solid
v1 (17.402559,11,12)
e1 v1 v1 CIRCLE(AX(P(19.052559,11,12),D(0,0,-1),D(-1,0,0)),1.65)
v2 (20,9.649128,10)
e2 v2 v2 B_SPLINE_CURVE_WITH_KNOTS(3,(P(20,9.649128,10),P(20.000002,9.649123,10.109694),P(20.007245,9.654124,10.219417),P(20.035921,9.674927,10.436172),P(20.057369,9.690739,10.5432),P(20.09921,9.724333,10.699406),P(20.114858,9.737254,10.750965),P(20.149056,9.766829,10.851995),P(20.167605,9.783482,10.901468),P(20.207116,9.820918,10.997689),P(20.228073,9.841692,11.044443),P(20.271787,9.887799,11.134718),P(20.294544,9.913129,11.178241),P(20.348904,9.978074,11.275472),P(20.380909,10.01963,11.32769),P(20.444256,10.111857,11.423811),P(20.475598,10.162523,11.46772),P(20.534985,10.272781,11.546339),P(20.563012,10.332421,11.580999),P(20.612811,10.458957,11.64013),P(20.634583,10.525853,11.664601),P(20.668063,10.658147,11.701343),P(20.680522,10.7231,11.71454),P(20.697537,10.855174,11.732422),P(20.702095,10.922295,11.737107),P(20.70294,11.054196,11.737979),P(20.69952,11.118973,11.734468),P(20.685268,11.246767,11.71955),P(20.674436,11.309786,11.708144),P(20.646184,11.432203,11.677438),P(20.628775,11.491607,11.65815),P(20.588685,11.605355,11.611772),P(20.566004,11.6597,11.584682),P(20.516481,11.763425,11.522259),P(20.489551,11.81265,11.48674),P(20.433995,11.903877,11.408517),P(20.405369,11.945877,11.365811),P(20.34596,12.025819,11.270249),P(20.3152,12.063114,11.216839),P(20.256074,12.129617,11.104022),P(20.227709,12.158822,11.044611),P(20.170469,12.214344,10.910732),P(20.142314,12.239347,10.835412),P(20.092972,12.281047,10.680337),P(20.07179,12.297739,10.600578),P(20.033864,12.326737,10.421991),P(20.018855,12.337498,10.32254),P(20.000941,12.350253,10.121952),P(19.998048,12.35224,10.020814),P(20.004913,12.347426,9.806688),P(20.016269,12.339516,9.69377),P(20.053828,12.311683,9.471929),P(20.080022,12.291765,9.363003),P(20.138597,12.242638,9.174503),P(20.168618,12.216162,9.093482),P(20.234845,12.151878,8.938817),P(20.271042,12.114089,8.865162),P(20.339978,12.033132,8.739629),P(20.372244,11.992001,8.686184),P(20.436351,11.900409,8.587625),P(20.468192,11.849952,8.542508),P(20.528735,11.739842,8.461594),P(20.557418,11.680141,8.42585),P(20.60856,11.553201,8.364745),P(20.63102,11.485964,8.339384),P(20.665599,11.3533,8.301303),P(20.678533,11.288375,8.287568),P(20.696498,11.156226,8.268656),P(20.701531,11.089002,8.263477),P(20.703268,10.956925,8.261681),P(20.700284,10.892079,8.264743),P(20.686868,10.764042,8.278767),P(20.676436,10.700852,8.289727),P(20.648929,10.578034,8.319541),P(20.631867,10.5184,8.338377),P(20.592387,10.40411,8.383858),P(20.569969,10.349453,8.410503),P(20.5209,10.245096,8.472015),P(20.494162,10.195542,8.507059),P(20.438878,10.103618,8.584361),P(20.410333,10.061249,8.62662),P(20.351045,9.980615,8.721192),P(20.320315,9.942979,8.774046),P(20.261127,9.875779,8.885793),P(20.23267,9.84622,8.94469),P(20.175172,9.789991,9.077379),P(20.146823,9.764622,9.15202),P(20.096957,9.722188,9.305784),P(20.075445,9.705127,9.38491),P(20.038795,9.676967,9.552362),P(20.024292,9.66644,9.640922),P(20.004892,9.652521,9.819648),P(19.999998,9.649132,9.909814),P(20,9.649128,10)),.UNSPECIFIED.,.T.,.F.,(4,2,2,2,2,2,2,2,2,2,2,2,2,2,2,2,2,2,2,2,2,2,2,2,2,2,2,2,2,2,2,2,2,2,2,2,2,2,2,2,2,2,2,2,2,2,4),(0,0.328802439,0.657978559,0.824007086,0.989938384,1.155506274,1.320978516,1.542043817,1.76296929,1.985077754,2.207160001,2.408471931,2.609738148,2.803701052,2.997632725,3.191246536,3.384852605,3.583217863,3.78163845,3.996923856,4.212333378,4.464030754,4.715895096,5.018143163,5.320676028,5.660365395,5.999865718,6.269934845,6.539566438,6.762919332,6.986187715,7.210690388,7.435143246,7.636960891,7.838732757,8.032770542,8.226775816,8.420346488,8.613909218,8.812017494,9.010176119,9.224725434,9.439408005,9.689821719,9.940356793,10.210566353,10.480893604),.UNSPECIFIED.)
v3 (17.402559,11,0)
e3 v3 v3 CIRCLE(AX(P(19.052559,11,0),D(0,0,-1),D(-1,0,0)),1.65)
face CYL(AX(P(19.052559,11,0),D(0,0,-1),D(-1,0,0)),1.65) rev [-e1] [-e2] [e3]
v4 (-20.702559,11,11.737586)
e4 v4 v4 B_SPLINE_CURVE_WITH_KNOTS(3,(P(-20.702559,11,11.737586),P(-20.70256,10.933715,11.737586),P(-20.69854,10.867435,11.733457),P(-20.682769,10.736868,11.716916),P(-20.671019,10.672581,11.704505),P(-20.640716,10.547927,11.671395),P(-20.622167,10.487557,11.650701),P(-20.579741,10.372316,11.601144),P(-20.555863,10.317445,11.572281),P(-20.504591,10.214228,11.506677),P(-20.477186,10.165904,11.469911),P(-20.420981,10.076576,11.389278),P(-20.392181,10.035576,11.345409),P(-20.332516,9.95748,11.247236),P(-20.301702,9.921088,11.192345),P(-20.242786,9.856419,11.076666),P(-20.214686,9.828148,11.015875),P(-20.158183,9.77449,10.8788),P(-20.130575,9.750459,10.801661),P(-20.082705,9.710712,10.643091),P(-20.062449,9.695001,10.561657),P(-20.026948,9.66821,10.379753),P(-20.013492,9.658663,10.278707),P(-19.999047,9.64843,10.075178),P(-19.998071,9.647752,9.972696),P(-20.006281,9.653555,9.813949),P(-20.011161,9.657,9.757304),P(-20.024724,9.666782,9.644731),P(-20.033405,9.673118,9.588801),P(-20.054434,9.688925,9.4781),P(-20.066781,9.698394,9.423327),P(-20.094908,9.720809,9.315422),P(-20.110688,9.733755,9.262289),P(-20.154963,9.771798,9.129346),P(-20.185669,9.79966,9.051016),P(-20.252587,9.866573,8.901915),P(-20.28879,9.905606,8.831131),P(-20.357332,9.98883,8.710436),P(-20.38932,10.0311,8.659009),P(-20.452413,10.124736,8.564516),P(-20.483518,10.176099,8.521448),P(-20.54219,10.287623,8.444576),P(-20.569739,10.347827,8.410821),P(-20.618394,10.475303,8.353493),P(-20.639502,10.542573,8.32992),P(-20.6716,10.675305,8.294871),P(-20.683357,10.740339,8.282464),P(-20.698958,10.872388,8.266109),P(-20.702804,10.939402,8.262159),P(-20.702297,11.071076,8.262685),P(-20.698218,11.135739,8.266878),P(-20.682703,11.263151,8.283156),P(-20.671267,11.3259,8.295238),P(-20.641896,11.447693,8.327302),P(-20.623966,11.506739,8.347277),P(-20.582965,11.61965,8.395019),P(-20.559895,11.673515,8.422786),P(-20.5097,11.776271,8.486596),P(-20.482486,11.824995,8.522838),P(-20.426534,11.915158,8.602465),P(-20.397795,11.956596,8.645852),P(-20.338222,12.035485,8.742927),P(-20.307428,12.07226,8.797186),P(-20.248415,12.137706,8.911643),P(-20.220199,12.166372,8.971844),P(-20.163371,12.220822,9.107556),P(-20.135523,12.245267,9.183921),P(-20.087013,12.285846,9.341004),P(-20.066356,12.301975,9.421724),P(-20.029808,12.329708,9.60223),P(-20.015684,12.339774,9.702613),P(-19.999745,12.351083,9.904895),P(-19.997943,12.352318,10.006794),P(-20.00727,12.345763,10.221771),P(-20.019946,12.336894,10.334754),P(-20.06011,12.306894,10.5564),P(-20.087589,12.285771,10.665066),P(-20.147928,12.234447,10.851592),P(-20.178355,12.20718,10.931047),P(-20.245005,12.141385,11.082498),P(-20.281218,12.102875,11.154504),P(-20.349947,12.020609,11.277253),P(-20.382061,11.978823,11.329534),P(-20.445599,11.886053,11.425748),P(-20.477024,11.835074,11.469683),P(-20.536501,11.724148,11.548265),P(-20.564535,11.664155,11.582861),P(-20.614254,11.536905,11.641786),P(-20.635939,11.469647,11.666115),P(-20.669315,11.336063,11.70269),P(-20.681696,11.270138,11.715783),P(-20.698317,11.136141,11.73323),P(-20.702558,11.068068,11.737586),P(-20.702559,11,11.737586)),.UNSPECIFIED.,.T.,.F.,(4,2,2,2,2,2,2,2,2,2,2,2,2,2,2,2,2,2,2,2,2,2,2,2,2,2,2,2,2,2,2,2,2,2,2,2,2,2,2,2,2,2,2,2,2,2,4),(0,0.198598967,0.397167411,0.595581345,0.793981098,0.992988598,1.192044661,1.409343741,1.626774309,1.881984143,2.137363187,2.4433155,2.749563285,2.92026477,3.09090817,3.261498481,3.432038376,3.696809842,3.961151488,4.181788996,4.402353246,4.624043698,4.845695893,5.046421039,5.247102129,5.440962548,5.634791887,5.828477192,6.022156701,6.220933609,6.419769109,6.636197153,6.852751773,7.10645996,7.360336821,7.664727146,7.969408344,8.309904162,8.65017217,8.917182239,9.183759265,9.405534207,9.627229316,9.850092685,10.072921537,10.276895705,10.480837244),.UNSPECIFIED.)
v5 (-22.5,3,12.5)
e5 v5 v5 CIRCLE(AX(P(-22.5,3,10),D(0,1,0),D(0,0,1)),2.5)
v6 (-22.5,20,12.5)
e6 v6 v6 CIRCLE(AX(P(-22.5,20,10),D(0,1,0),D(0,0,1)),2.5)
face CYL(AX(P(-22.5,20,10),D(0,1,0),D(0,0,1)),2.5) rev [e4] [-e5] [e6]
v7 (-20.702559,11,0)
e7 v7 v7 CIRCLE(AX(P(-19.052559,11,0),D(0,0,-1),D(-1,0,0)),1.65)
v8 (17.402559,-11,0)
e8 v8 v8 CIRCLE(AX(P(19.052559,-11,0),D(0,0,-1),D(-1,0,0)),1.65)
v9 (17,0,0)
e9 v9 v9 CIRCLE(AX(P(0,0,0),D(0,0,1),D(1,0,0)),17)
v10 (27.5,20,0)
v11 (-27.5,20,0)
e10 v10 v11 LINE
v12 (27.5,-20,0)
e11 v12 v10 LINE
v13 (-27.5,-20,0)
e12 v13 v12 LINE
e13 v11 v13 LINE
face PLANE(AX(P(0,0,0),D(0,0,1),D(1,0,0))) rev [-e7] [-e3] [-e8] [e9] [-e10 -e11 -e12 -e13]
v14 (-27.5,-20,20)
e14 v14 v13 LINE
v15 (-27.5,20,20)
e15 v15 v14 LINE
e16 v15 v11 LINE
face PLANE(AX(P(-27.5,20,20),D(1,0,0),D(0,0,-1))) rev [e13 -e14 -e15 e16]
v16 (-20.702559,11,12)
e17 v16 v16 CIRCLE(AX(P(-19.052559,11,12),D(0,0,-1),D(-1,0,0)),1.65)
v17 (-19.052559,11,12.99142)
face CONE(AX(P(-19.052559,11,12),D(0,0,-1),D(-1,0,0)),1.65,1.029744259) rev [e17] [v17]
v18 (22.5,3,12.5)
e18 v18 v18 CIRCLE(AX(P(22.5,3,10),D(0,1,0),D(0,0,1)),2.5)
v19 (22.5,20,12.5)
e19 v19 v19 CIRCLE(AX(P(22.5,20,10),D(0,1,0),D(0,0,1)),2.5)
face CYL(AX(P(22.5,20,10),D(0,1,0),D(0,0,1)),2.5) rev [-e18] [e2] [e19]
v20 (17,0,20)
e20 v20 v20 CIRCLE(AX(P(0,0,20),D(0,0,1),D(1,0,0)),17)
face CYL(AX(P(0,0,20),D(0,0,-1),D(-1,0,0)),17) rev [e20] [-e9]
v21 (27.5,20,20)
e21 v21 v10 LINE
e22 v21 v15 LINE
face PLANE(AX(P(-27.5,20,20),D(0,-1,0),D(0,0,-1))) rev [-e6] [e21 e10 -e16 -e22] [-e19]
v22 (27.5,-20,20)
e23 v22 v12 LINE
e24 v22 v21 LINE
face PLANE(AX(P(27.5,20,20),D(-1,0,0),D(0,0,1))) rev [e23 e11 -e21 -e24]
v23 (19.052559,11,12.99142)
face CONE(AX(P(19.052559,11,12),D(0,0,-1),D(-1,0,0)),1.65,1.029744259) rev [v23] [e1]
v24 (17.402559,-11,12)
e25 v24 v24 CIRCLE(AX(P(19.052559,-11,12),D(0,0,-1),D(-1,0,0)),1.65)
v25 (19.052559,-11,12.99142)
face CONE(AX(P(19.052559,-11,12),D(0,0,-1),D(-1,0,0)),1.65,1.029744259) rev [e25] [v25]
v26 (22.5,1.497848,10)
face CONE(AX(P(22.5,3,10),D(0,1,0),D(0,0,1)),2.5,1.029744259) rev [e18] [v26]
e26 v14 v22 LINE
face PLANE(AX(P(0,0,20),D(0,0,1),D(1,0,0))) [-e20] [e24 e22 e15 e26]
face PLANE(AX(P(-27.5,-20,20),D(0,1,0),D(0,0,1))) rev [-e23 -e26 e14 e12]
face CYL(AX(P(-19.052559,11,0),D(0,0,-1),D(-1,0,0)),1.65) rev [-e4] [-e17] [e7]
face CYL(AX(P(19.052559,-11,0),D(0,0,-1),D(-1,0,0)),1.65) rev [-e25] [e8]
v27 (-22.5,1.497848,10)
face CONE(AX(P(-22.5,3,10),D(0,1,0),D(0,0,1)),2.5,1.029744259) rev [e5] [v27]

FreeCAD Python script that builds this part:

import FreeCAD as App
import Part
import Sketcher
from FreeCAD import Vector
Q = App.Units.Quantity

doc = App.newDocument("Part")
body = doc.addObject("PartDesign::Body", "Body")

# Sketch on XY plane
sketch1 = body.newObject("Sketcher::SketchObject", "Sketch")
sketch1.AttachmentSupport = (doc.getObject("XY_Plane"), [""])
sketch1.MapMode = "FlatFace"
sketch1.addGeometry([
    Part.LineSegment(Vector(-28, 20, 0), Vector(-28, -20, 0)),  # 0
    Part.LineSegment(Vector(-28, -20, 0), Vector(28, -20, 0)),  # 1
    Part.LineSegment(Vector(28, -20, 0), Vector(28, 20, 0)),  # 2
    Part.LineSegment(Vector(28, 20, 0), Vector(-28, 20, 0)),  # 3
    Part.Circle(Vector(0, 0, 0), Vector(0, 0, 1), 17),  # 4
], False)
sketch1.addConstraint([
    Sketcher.Constraint("Coincident", 0, 2, 1, 1),
    Sketcher.Constraint("Coincident", 1, 2, 2, 1),
    Sketcher.Constraint("Coincident", 2, 2, 3, 1),
    Sketcher.Constraint("Coincident", 3, 2, 0, 1),
    Sketcher.Constraint("Vertical", 0),
    Sketcher.Constraint("Horizontal", 1),
    Sketcher.Constraint("Vertical", 2),
    Sketcher.Constraint("Horizontal", 3),
    Sketcher.Constraint("Coincident", 4, 3, -1, 1),
    Sketcher.Constraint("Symmetric", 0, 2, 2, 2, -1, 1),
    Sketcher.Constraint("Diameter", 4, Q("34 mm")),
    Sketcher.Constraint("DistanceX", 1, 1, 1, 2, Q("55 mm")),
    Sketcher.Constraint("DistanceY", 0, 2, 0, 1, Q("40 mm")),
])
pad1 = body.newObject("PartDesign::Pad", "Pad")
pad1.Profile = sketch1
pad1.Length = 20

# Sketch on XZ plane
sketch2 = body.newObject("Sketcher::SketchObject", "Sketch001")
sketch2.AttachmentSupport = (doc.getObject("XZ_Plane"), [""])
sketch2.MapMode = "FlatFace"
sketch2.AttachmentOffset = App.Placement(Vector(0, 0, -20), App.Rotation())
sketch2.addGeometry([
    Part.Circle(Vector(-22.5, 10, 0), Vector(0, 0, 1), 2.5),
    Part.Circle(Vector(22.5, 10, 0), Vector(0, 0, 1), 2.5),
], False)
sketch2.addConstraint([
    Sketcher.Constraint("Equal", 0, 1),
    Sketcher.Constraint("Symmetric", 0, 3, 1, 3, -2),
    Sketcher.Constraint("Diameter", 0, Q("5 mm")),
    Sketcher.Constraint("DistanceY", -1, 1, 0, 3, Q("10 mm")),
    Sketcher.Constraint("DistanceX", 0, 3, 1, 3, Q("45 mm")),
])
doc.recompute()
hole = body.newObject("PartDesign::Hole", "Hole")
hole.Profile = sketch2
hole.ThreadType = "None"
hole.Diameter = 5
hole.DepthType = "Dimension"
hole.Depth = 17
hole.DrillPoint = "Angled"
hole.DrillPointAngle = 118
hole.Reversed = True

# Sketch on XY plane
sketch3 = body.newObject("Sketcher::SketchObject", "Sketch002")
sketch3.AttachmentSupport = (doc.getObject("XY_Plane"), [""])
sketch3.MapMode = "FlatFace"
sketch3.addGeometry([
    Part.Circle(Vector(19.1, -11, 0), Vector(0, 0, 1), 1.6),
    Part.Circle(Vector(19.1, 11, 0), Vector(0, 0, 1), 1.6),
    Part.Circle(Vector(0, 22, 0), Vector(0, 0, 1), 1.6),
    Part.Circle(Vector(-19.1, 11, 0), Vector(0, 0, 1), 1.6),
], False)
sketch3.addConstraint([
    Sketcher.Constraint("Equal", 0, 1),
    Sketcher.Constraint("Equal", 1, 2),
    Sketcher.Constraint("Equal", 2, 3),
    Sketcher.Constraint("Symmetric", 0, 3, 3, 3, -1, 1),
    Sketcher.Constraint("Symmetric", 1, 3, 3, 3, -2),
    Sketcher.Constraint("PointOnObject", 2, 3, -2),
    Sketcher.Constraint("Diameter", 0, Q("3.3 mm")),
    Sketcher.Constraint("DistanceY", 0, 3, -1, 1, Q("11 mm")),
    Sketcher.Constraint("DistanceY", -1, 1, 2, 3, Q("22 mm")),
    Sketcher.Constraint("DistanceX", -1, 1, 0, 3, Q("19.052559 mm")),
])
doc.recompute()
hole2 = body.newObject("PartDesign::Hole", "Hole001")
hole2.Profile = sketch3
hole2.ThreadType = "None"
hole2.Diameter = 3.3
hole2.DepthType = "Dimension"
hole2.Depth = 12
hole2.DrillPoint = "Angled"
hole2.DrillPointAngle = 118
hole2.Reversed = True

doc.recompute()
